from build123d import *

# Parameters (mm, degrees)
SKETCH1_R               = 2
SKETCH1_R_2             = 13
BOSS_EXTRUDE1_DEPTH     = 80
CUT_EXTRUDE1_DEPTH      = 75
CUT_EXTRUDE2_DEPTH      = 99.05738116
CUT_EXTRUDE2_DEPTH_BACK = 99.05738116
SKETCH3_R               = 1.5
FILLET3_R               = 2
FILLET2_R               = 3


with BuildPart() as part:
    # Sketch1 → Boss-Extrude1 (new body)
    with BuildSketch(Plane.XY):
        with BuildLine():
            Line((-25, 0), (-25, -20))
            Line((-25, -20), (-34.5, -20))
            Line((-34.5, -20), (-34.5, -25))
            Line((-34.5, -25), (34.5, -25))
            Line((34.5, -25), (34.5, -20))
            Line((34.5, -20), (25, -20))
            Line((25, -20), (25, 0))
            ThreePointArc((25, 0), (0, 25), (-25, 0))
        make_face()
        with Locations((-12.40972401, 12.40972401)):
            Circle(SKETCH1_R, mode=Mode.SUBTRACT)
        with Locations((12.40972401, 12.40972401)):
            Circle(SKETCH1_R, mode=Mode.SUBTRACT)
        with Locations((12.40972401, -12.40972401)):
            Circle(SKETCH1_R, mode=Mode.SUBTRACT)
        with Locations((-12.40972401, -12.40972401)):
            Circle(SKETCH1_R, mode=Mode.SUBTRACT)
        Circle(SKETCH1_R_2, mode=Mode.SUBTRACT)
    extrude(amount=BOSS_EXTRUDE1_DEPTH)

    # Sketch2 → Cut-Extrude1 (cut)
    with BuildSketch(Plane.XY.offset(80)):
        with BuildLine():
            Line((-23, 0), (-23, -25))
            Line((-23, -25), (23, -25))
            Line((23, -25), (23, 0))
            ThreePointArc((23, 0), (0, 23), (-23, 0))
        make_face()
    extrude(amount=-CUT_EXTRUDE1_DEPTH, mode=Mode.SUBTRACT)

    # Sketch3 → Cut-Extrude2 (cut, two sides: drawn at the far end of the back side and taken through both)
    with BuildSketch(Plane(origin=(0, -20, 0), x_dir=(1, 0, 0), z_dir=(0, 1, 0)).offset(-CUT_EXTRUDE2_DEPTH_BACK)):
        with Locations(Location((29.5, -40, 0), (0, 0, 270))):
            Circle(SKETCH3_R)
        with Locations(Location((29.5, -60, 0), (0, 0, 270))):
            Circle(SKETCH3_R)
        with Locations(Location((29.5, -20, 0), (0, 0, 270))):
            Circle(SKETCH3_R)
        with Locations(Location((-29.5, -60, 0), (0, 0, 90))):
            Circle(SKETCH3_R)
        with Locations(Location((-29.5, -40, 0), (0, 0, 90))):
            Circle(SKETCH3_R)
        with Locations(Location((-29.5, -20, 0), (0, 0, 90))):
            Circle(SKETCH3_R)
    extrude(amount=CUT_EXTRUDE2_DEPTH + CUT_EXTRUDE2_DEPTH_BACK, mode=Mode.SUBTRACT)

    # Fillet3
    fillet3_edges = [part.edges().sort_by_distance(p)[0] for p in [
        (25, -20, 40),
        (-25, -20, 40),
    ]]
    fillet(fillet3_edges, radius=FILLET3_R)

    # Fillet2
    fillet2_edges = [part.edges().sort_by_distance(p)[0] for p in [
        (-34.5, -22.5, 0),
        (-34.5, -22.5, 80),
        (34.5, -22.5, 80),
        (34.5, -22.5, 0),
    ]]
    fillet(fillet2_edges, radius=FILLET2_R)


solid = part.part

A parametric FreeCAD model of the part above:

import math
import FreeCAD as App
import Part
import Sketcher
from FreeCAD import Vector


def edges_at(feature, points):
    """Names of the edges that pass closest to the given points."""
    edges = feature.Shape.Edges
    near = lambda p: min(range(len(edges)), key=lambda i: edges[i].distToShape(Part.Vertex(*p))[0])
    return sorted({f"Edge{near(p) + 1}" for p in points})

doc = App.newDocument("Part")
body = doc.addObject("PartDesign::Body", "Body")

# Sketch on XY plane
sketch1 = body.newObject("Sketcher::SketchObject", "Sketch")
sketch1.AttachmentSupport = (doc.getObject("XY_Plane"), [""])
sketch1.MapMode = "FlatFace"
sketch1.addGeometry(Part.LineSegment(Vector(-25, 0, 0), Vector(-25, -20, 0)), False)
sketch1.addGeometry(Part.LineSegment(Vector(-25, -20, 0), Vector(-34.5, -20, 0)), False)
sketch1.addGeometry(Part.LineSegment(Vector(-34.5, -20, 0), Vector(-34.5, -25, 0)), False)
sketch1.addGeometry(Part.LineSegment(Vector(-34.5, -25, 0), Vector(34.5, -25, 0)), False)
sketch1.addGeometry(Part.LineSegment(Vector(34.5, -25, 0), Vector(34.5, -20, 0)), False)
sketch1.addGeometry(Part.LineSegment(Vector(34.5, -20, 0), Vector(25, -20, 0)), False)
sketch1.addGeometry(Part.LineSegment(Vector(25, -20, 0), Vector(25, 0, 0)), False)
sketch1.addGeometry(Part.ArcOfCircle(Part.Circle(Vector(0, 0, 0), Vector(0, 0, 1), 25), math.radians(0), math.radians(180)), False)
sketch1.addGeometry(Part.Circle(Vector(-12.4, -12.4, 0), Vector(0, 0, 1), 2), False)
sketch1.addGeometry(Part.Circle(Vector(12.4, -12.4, 0), Vector(0, 0, 1), 2), False)
sketch1.addGeometry(Part.Circle(Vector(0, 0, 0), Vector(0, 0, 1), 13), False)
sketch1.addGeometry(Part.Circle(Vector(-12.4, 12.4, 0), Vector(0, 0, 1), 2), False)
sketch1.addGeometry(Part.Circle(Vector(12.4, 12.4, 0), Vector(0, 0, 1), 2), False)
sketch1.addConstraint(Sketcher.Constraint("Coincident", 0, 2, 1, 1))
sketch1.addConstraint(Sketcher.Constraint("Coincident", 1, 2, 2, 1))
sketch1.addConstraint(Sketcher.Constraint("Coincident", 2, 2, 3, 1))
sketch1.addConstraint(Sketcher.Constraint("Coincident", 3, 2, 4, 1))
sketch1.addConstraint(Sketcher.Constraint("Coincident", 4, 2, 5, 1))
sketch1.addConstraint(Sketcher.Constraint("Coincident", 5, 2, 6, 1))
sketch1.addConstraint(Sketcher.Constraint("Tangent", 6, 2, 7, 1))
sketch1.addConstraint(Sketcher.Constraint("Tangent", 7, 2, 0, 1))
sketch1.addConstraint(Sketcher.Constraint("Vertical", 0))
sketch1.addConstraint(Sketcher.Constraint("Horizontal", 1))
sketch1.addConstraint(Sketcher.Constraint("Vertical", 2))
sketch1.addConstraint(Sketcher.Constraint("Horizontal", 3))
sketch1.addConstraint(Sketcher.Constraint("Vertical", 4))
sketch1.addConstraint(Sketcher.Constraint("Horizontal", 5))
sketch1.addConstraint(Sketcher.Constraint("Vertical", 6))
sketch1.addConstraint(Sketcher.Constraint("Coincident", 7, 3, -1, 1))
sketch1.addConstraint(Sketcher.Constraint("Coincident", 10, 3, -1, 1))
sketch1.addConstraint(Sketcher.Constraint("Equal", 8, 9))
sketch1.addConstraint(Sketcher.Constraint("Equal", 9, 11))
sketch1.addConstraint(Sketcher.Constraint("Equal", 11, 12))
sketch1.addConstraint(Sketcher.Constraint("Symmetric", 9, 3, 11, 3, -1, 1))
sketch1.addConstraint(Sketcher.Constraint("Symmetric", 8, 3, 12, 3, -1, 1))
sketch1.addConstraint(Sketcher.Constraint("Symmetric", 8, 3, 9, 3, -2))
sketch1.addConstraint(Sketcher.Constraint("Symmetric", 1, 2, 4, 2, -2))
sketch1.addConstraint(Sketcher.Constraint("Diameter", 8, 4.0))
sketch1.addConstraint(Sketcher.Constraint("Diameter", 10, 26.0))
sketch1.addConstraint(Sketcher.Constraint("Radius", 7, 25.0))
sketch1.addConstraint(Sketcher.Constraint("DistanceX", 3, 1, 3, 2, 69.0))
sketch1.addConstraint(Sketcher.Constraint("DistanceY", 0, 2, 0, 1, 20.0))
sketch1.addConstraint(Sketcher.Constraint("DistanceY", 2, 2, 2, 1, 5.0))
sketch1.addConstraint(Sketcher.Constraint("DistanceX", 8, 3, 9, 3, 24.819448))
sketch1.addConstraint(Sketcher.Constraint("DistanceY", 8, 3, 11, 3, 24.819448))
pad1 = body.newObject("PartDesign::Pad", "Pad")
pad1.Profile = sketch1
pad1.Length = 80

# Sketch on XY plane
sketch2 = body.newObject("Sketcher::SketchObject", "Sketch001")
sketch2.AttachmentSupport = (doc.getObject("XY_Plane"), [""])
sketch2.MapMode = "FlatFace"
sketch2.AttachmentOffset = App.Placement(Vector(0, 0, 80), App.Rotation())
sketch2.addGeometry(Part.LineSegment(Vector(-23, 0, 0), Vector(-23, -25, 0)), False)
sketch2.addGeometry(Part.LineSegment(Vector(-23, -25, 0), Vector(23, -25, 0)), False)
sketch2.addGeometry(Part.LineSegment(Vector(23, -25, 0), Vector(23, 0, 0)), False)
sketch2.addGeometry(Part.ArcOfCircle(Part.Circle(Vector(0, 0, 0), Vector(0, 0, 1), 23), math.radians(0), math.radians(180)), False)
sketch2.addConstraint(Sketcher.Constraint("Coincident", 0, 2, 1, 1))
sketch2.addConstraint(Sketcher.Constraint("Coincident", 1, 2, 2, 1))
sketch2.addConstraint(Sketcher.Constraint("Tangent", 2, 2, 3, 1))
sketch2.addConstraint(Sketcher.Constraint("Tangent", 3, 2, 0, 1))
sketch2.addConstraint(Sketcher.Constraint("Vertical", 0))
sketch2.addConstraint(Sketcher.Constraint("Horizontal", 1))
sketch2.addConstraint(Sketcher.Constraint("Vertical", 2))
sketch2.addConstraint(Sketcher.Constraint("Coincident", 3, 3, -1, 1))
sketch2.addConstraint(Sketcher.Constraint("Radius", 3, 23.0))
sketch2.addConstraint(Sketcher.Constraint("DistanceY", 0, 2, 0, 1, 25.0))
pocket1 = body.newObject("PartDesign::Pocket", "Pocket")
pocket1.Profile = sketch2
pocket1.Length = 75

# Sketch on XZ plane
sketch3 = body.newObject("Sketcher::SketchObject", "Sketch002")
sketch3.AttachmentSupport = (doc.getObject("XZ_Plane"), [""])
sketch3.MapMode = "FlatFace"
sketch3.AttachmentOffset = App.Placement(Vector(0, 0, 20), App.Rotation())
sketch3.addGeometry(Part.Circle(Vector(29.5, 40, 0), Vector(0, 0, 1), 1.5), False)
sketch3.addGeometry(Part.Circle(Vector(29.5, 60, 0), Vector(0, 0, 1), 1.5), False)
sketch3.addGeometry(Part.Circle(Vector(29.5, 20, 0), Vector(0, 0, 1), 1.5), False)
sketch3.addGeometry(Part.Circle(Vector(-29.5, 60, 0), Vector(0, 0, 1), 1.5), False)
sketch3.addGeometry(Part.Circle(Vector(-29.5, 40, 0), Vector(0, 0, 1), 1.5), False)
sketch3.addGeometry(Part.Circle(Vector(-29.5, 20, 0), Vector(0, 0, 1), 1.5), False)
sketch3.addConstraint(Sketcher.Constraint("Equal", 0, 1))
sketch3.addConstraint(Sketcher.Constraint("Equal", 1, 2))
sketch3.addConstraint(Sketcher.Constraint("Equal", 2, 3))
sketch3.addConstraint(Sketcher.Constraint("Equal", 3, 4))
sketch3.addConstraint(Sketcher.Constraint("Equal", 4, 5))
sketch3.addConstraint(Sketcher.Constraint("Symmetric", 1, 3, 3, 3, -2))
sketch3.addConstraint(Sketcher.Constraint("Symmetric", 0, 3, 4, 3, -2))
sketch3.addConstraint(Sketcher.Constraint("Symmetric", 2, 3, 5, 3, -2))
sketch3.addConstraint(Sketcher.Constraint("Vertical", 0, 3, 1, 3))
sketch3.addConstraint(Sketcher.Constraint("Vertical", 1, 3, 2, 3))
sketch3.addConstraint(Sketcher.Constraint("Diameter", 0, 3.0))
sketch3.addConstraint(Sketcher.Constraint("DistanceY", -1, 1, 0, 3, 40.0))
sketch3.addConstraint(Sketcher.Constraint("DistanceY", -1, 1, 1, 3, 60.0))
sketch3.addConstraint(Sketcher.Constraint("DistanceY", -1, 1, 2, 3, 20.0))
sketch3.addConstraint(Sketcher.Constraint("DistanceX", 3, 3, 1, 3, 59.0))
pocket2 = body.newObject("PartDesign::Pocket", "Pocket001")
pocket2.Profile = sketch3
pocket2.Type = "ThroughAll"
pocket2.Midplane = True
doc.recompute()

fillet = body.newObject("PartDesign::Fillet", "Fillet")
fillet.Base = (pocket2, edges_at(pocket2, [(25, -20, 40), (-25, -20, 40)]))
fillet.Radius = 2
doc.recompute()

fillet2 = body.newObject("PartDesign::Fillet", "Fillet001")
fillet2.Base = (fillet, edges_at(fillet, [
    (-34.5, -22.5, 0),
    (-34.5, -22.5, 80),
    (34.5, -22.5, 80),
    (34.5, -22.5, 0),
]))
fillet2.Radius = 3

doc.recompute()
